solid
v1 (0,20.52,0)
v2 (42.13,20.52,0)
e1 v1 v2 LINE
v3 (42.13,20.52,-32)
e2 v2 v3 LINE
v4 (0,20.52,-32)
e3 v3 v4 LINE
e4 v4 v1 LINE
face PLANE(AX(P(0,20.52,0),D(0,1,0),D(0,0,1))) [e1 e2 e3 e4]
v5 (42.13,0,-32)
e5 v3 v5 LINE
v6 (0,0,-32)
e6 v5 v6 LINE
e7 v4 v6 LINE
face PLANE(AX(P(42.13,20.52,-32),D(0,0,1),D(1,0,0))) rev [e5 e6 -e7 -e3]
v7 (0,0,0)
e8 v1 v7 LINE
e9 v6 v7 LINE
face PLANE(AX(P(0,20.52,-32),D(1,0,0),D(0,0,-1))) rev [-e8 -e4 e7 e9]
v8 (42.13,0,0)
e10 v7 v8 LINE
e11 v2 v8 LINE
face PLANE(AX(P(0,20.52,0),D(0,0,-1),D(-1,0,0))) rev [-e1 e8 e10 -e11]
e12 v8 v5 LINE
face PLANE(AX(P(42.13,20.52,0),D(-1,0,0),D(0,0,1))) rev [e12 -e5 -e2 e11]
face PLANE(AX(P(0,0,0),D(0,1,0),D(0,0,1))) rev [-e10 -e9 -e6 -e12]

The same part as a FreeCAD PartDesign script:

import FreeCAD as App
import Part
import Sketcher
from FreeCAD import Vector
Q = App.Units.Quantity

doc = App.newDocument("Part")
body = doc.addObject("PartDesign::Body", "Body")

sketch1 = body.newObject("Sketcher::SketchObject", "Sketch")
sketch1.AttachmentSupport = (doc.getObject("XZ_Plane"), [""])
sketch1.MapMode = "FlatFace"
sketch1.addGeometry([
    Part.LineSegment(Vector(0, -32, 0), Vector(0, 0, 0)),
    Part.LineSegment(Vector(0, 0, 0), Vector(42.13, 0, 0)),
    Part.LineSegment(Vector(42.13, 0, 0), Vector(42.13, -32, 0)),
    Part.LineSegment(Vector(42.13, -32, 0), Vector(0, -32, 0)),
], False)
sketch1.addConstraint([
    Sketcher.Constraint("Coincident", 0, 2, 1, 1),
    Sketcher.Constraint("Coincident", 1, 2, 2, 1),
    Sketcher.Constraint("Coincident", 2, 2, 3, 1),
    Sketcher.Constraint("Coincident", 3, 2, 0, 1),
    Sketcher.Constraint("Vertical", 0),
    Sketcher.Constraint("Horizontal", 1),
    Sketcher.Constraint("Vertical", 2),
    Sketcher.Constraint("Horizontal", 3),
    Sketcher.Constraint("Coincident", 0, 2, -1, 1),
    Sketcher.Constraint("DistanceY", 0, 1, 0, 2, Q("32 mm")),
    Sketcher.Constraint("DistanceX", 1, 1, 1, 2, Q("42.13 mm")),
])
pad1 = body.newObject("PartDesign::Pad", "Pad")
pad1.Profile = sketch1
pad1.Length = 20.52
pad1.Reversed = True

doc.recompute()
